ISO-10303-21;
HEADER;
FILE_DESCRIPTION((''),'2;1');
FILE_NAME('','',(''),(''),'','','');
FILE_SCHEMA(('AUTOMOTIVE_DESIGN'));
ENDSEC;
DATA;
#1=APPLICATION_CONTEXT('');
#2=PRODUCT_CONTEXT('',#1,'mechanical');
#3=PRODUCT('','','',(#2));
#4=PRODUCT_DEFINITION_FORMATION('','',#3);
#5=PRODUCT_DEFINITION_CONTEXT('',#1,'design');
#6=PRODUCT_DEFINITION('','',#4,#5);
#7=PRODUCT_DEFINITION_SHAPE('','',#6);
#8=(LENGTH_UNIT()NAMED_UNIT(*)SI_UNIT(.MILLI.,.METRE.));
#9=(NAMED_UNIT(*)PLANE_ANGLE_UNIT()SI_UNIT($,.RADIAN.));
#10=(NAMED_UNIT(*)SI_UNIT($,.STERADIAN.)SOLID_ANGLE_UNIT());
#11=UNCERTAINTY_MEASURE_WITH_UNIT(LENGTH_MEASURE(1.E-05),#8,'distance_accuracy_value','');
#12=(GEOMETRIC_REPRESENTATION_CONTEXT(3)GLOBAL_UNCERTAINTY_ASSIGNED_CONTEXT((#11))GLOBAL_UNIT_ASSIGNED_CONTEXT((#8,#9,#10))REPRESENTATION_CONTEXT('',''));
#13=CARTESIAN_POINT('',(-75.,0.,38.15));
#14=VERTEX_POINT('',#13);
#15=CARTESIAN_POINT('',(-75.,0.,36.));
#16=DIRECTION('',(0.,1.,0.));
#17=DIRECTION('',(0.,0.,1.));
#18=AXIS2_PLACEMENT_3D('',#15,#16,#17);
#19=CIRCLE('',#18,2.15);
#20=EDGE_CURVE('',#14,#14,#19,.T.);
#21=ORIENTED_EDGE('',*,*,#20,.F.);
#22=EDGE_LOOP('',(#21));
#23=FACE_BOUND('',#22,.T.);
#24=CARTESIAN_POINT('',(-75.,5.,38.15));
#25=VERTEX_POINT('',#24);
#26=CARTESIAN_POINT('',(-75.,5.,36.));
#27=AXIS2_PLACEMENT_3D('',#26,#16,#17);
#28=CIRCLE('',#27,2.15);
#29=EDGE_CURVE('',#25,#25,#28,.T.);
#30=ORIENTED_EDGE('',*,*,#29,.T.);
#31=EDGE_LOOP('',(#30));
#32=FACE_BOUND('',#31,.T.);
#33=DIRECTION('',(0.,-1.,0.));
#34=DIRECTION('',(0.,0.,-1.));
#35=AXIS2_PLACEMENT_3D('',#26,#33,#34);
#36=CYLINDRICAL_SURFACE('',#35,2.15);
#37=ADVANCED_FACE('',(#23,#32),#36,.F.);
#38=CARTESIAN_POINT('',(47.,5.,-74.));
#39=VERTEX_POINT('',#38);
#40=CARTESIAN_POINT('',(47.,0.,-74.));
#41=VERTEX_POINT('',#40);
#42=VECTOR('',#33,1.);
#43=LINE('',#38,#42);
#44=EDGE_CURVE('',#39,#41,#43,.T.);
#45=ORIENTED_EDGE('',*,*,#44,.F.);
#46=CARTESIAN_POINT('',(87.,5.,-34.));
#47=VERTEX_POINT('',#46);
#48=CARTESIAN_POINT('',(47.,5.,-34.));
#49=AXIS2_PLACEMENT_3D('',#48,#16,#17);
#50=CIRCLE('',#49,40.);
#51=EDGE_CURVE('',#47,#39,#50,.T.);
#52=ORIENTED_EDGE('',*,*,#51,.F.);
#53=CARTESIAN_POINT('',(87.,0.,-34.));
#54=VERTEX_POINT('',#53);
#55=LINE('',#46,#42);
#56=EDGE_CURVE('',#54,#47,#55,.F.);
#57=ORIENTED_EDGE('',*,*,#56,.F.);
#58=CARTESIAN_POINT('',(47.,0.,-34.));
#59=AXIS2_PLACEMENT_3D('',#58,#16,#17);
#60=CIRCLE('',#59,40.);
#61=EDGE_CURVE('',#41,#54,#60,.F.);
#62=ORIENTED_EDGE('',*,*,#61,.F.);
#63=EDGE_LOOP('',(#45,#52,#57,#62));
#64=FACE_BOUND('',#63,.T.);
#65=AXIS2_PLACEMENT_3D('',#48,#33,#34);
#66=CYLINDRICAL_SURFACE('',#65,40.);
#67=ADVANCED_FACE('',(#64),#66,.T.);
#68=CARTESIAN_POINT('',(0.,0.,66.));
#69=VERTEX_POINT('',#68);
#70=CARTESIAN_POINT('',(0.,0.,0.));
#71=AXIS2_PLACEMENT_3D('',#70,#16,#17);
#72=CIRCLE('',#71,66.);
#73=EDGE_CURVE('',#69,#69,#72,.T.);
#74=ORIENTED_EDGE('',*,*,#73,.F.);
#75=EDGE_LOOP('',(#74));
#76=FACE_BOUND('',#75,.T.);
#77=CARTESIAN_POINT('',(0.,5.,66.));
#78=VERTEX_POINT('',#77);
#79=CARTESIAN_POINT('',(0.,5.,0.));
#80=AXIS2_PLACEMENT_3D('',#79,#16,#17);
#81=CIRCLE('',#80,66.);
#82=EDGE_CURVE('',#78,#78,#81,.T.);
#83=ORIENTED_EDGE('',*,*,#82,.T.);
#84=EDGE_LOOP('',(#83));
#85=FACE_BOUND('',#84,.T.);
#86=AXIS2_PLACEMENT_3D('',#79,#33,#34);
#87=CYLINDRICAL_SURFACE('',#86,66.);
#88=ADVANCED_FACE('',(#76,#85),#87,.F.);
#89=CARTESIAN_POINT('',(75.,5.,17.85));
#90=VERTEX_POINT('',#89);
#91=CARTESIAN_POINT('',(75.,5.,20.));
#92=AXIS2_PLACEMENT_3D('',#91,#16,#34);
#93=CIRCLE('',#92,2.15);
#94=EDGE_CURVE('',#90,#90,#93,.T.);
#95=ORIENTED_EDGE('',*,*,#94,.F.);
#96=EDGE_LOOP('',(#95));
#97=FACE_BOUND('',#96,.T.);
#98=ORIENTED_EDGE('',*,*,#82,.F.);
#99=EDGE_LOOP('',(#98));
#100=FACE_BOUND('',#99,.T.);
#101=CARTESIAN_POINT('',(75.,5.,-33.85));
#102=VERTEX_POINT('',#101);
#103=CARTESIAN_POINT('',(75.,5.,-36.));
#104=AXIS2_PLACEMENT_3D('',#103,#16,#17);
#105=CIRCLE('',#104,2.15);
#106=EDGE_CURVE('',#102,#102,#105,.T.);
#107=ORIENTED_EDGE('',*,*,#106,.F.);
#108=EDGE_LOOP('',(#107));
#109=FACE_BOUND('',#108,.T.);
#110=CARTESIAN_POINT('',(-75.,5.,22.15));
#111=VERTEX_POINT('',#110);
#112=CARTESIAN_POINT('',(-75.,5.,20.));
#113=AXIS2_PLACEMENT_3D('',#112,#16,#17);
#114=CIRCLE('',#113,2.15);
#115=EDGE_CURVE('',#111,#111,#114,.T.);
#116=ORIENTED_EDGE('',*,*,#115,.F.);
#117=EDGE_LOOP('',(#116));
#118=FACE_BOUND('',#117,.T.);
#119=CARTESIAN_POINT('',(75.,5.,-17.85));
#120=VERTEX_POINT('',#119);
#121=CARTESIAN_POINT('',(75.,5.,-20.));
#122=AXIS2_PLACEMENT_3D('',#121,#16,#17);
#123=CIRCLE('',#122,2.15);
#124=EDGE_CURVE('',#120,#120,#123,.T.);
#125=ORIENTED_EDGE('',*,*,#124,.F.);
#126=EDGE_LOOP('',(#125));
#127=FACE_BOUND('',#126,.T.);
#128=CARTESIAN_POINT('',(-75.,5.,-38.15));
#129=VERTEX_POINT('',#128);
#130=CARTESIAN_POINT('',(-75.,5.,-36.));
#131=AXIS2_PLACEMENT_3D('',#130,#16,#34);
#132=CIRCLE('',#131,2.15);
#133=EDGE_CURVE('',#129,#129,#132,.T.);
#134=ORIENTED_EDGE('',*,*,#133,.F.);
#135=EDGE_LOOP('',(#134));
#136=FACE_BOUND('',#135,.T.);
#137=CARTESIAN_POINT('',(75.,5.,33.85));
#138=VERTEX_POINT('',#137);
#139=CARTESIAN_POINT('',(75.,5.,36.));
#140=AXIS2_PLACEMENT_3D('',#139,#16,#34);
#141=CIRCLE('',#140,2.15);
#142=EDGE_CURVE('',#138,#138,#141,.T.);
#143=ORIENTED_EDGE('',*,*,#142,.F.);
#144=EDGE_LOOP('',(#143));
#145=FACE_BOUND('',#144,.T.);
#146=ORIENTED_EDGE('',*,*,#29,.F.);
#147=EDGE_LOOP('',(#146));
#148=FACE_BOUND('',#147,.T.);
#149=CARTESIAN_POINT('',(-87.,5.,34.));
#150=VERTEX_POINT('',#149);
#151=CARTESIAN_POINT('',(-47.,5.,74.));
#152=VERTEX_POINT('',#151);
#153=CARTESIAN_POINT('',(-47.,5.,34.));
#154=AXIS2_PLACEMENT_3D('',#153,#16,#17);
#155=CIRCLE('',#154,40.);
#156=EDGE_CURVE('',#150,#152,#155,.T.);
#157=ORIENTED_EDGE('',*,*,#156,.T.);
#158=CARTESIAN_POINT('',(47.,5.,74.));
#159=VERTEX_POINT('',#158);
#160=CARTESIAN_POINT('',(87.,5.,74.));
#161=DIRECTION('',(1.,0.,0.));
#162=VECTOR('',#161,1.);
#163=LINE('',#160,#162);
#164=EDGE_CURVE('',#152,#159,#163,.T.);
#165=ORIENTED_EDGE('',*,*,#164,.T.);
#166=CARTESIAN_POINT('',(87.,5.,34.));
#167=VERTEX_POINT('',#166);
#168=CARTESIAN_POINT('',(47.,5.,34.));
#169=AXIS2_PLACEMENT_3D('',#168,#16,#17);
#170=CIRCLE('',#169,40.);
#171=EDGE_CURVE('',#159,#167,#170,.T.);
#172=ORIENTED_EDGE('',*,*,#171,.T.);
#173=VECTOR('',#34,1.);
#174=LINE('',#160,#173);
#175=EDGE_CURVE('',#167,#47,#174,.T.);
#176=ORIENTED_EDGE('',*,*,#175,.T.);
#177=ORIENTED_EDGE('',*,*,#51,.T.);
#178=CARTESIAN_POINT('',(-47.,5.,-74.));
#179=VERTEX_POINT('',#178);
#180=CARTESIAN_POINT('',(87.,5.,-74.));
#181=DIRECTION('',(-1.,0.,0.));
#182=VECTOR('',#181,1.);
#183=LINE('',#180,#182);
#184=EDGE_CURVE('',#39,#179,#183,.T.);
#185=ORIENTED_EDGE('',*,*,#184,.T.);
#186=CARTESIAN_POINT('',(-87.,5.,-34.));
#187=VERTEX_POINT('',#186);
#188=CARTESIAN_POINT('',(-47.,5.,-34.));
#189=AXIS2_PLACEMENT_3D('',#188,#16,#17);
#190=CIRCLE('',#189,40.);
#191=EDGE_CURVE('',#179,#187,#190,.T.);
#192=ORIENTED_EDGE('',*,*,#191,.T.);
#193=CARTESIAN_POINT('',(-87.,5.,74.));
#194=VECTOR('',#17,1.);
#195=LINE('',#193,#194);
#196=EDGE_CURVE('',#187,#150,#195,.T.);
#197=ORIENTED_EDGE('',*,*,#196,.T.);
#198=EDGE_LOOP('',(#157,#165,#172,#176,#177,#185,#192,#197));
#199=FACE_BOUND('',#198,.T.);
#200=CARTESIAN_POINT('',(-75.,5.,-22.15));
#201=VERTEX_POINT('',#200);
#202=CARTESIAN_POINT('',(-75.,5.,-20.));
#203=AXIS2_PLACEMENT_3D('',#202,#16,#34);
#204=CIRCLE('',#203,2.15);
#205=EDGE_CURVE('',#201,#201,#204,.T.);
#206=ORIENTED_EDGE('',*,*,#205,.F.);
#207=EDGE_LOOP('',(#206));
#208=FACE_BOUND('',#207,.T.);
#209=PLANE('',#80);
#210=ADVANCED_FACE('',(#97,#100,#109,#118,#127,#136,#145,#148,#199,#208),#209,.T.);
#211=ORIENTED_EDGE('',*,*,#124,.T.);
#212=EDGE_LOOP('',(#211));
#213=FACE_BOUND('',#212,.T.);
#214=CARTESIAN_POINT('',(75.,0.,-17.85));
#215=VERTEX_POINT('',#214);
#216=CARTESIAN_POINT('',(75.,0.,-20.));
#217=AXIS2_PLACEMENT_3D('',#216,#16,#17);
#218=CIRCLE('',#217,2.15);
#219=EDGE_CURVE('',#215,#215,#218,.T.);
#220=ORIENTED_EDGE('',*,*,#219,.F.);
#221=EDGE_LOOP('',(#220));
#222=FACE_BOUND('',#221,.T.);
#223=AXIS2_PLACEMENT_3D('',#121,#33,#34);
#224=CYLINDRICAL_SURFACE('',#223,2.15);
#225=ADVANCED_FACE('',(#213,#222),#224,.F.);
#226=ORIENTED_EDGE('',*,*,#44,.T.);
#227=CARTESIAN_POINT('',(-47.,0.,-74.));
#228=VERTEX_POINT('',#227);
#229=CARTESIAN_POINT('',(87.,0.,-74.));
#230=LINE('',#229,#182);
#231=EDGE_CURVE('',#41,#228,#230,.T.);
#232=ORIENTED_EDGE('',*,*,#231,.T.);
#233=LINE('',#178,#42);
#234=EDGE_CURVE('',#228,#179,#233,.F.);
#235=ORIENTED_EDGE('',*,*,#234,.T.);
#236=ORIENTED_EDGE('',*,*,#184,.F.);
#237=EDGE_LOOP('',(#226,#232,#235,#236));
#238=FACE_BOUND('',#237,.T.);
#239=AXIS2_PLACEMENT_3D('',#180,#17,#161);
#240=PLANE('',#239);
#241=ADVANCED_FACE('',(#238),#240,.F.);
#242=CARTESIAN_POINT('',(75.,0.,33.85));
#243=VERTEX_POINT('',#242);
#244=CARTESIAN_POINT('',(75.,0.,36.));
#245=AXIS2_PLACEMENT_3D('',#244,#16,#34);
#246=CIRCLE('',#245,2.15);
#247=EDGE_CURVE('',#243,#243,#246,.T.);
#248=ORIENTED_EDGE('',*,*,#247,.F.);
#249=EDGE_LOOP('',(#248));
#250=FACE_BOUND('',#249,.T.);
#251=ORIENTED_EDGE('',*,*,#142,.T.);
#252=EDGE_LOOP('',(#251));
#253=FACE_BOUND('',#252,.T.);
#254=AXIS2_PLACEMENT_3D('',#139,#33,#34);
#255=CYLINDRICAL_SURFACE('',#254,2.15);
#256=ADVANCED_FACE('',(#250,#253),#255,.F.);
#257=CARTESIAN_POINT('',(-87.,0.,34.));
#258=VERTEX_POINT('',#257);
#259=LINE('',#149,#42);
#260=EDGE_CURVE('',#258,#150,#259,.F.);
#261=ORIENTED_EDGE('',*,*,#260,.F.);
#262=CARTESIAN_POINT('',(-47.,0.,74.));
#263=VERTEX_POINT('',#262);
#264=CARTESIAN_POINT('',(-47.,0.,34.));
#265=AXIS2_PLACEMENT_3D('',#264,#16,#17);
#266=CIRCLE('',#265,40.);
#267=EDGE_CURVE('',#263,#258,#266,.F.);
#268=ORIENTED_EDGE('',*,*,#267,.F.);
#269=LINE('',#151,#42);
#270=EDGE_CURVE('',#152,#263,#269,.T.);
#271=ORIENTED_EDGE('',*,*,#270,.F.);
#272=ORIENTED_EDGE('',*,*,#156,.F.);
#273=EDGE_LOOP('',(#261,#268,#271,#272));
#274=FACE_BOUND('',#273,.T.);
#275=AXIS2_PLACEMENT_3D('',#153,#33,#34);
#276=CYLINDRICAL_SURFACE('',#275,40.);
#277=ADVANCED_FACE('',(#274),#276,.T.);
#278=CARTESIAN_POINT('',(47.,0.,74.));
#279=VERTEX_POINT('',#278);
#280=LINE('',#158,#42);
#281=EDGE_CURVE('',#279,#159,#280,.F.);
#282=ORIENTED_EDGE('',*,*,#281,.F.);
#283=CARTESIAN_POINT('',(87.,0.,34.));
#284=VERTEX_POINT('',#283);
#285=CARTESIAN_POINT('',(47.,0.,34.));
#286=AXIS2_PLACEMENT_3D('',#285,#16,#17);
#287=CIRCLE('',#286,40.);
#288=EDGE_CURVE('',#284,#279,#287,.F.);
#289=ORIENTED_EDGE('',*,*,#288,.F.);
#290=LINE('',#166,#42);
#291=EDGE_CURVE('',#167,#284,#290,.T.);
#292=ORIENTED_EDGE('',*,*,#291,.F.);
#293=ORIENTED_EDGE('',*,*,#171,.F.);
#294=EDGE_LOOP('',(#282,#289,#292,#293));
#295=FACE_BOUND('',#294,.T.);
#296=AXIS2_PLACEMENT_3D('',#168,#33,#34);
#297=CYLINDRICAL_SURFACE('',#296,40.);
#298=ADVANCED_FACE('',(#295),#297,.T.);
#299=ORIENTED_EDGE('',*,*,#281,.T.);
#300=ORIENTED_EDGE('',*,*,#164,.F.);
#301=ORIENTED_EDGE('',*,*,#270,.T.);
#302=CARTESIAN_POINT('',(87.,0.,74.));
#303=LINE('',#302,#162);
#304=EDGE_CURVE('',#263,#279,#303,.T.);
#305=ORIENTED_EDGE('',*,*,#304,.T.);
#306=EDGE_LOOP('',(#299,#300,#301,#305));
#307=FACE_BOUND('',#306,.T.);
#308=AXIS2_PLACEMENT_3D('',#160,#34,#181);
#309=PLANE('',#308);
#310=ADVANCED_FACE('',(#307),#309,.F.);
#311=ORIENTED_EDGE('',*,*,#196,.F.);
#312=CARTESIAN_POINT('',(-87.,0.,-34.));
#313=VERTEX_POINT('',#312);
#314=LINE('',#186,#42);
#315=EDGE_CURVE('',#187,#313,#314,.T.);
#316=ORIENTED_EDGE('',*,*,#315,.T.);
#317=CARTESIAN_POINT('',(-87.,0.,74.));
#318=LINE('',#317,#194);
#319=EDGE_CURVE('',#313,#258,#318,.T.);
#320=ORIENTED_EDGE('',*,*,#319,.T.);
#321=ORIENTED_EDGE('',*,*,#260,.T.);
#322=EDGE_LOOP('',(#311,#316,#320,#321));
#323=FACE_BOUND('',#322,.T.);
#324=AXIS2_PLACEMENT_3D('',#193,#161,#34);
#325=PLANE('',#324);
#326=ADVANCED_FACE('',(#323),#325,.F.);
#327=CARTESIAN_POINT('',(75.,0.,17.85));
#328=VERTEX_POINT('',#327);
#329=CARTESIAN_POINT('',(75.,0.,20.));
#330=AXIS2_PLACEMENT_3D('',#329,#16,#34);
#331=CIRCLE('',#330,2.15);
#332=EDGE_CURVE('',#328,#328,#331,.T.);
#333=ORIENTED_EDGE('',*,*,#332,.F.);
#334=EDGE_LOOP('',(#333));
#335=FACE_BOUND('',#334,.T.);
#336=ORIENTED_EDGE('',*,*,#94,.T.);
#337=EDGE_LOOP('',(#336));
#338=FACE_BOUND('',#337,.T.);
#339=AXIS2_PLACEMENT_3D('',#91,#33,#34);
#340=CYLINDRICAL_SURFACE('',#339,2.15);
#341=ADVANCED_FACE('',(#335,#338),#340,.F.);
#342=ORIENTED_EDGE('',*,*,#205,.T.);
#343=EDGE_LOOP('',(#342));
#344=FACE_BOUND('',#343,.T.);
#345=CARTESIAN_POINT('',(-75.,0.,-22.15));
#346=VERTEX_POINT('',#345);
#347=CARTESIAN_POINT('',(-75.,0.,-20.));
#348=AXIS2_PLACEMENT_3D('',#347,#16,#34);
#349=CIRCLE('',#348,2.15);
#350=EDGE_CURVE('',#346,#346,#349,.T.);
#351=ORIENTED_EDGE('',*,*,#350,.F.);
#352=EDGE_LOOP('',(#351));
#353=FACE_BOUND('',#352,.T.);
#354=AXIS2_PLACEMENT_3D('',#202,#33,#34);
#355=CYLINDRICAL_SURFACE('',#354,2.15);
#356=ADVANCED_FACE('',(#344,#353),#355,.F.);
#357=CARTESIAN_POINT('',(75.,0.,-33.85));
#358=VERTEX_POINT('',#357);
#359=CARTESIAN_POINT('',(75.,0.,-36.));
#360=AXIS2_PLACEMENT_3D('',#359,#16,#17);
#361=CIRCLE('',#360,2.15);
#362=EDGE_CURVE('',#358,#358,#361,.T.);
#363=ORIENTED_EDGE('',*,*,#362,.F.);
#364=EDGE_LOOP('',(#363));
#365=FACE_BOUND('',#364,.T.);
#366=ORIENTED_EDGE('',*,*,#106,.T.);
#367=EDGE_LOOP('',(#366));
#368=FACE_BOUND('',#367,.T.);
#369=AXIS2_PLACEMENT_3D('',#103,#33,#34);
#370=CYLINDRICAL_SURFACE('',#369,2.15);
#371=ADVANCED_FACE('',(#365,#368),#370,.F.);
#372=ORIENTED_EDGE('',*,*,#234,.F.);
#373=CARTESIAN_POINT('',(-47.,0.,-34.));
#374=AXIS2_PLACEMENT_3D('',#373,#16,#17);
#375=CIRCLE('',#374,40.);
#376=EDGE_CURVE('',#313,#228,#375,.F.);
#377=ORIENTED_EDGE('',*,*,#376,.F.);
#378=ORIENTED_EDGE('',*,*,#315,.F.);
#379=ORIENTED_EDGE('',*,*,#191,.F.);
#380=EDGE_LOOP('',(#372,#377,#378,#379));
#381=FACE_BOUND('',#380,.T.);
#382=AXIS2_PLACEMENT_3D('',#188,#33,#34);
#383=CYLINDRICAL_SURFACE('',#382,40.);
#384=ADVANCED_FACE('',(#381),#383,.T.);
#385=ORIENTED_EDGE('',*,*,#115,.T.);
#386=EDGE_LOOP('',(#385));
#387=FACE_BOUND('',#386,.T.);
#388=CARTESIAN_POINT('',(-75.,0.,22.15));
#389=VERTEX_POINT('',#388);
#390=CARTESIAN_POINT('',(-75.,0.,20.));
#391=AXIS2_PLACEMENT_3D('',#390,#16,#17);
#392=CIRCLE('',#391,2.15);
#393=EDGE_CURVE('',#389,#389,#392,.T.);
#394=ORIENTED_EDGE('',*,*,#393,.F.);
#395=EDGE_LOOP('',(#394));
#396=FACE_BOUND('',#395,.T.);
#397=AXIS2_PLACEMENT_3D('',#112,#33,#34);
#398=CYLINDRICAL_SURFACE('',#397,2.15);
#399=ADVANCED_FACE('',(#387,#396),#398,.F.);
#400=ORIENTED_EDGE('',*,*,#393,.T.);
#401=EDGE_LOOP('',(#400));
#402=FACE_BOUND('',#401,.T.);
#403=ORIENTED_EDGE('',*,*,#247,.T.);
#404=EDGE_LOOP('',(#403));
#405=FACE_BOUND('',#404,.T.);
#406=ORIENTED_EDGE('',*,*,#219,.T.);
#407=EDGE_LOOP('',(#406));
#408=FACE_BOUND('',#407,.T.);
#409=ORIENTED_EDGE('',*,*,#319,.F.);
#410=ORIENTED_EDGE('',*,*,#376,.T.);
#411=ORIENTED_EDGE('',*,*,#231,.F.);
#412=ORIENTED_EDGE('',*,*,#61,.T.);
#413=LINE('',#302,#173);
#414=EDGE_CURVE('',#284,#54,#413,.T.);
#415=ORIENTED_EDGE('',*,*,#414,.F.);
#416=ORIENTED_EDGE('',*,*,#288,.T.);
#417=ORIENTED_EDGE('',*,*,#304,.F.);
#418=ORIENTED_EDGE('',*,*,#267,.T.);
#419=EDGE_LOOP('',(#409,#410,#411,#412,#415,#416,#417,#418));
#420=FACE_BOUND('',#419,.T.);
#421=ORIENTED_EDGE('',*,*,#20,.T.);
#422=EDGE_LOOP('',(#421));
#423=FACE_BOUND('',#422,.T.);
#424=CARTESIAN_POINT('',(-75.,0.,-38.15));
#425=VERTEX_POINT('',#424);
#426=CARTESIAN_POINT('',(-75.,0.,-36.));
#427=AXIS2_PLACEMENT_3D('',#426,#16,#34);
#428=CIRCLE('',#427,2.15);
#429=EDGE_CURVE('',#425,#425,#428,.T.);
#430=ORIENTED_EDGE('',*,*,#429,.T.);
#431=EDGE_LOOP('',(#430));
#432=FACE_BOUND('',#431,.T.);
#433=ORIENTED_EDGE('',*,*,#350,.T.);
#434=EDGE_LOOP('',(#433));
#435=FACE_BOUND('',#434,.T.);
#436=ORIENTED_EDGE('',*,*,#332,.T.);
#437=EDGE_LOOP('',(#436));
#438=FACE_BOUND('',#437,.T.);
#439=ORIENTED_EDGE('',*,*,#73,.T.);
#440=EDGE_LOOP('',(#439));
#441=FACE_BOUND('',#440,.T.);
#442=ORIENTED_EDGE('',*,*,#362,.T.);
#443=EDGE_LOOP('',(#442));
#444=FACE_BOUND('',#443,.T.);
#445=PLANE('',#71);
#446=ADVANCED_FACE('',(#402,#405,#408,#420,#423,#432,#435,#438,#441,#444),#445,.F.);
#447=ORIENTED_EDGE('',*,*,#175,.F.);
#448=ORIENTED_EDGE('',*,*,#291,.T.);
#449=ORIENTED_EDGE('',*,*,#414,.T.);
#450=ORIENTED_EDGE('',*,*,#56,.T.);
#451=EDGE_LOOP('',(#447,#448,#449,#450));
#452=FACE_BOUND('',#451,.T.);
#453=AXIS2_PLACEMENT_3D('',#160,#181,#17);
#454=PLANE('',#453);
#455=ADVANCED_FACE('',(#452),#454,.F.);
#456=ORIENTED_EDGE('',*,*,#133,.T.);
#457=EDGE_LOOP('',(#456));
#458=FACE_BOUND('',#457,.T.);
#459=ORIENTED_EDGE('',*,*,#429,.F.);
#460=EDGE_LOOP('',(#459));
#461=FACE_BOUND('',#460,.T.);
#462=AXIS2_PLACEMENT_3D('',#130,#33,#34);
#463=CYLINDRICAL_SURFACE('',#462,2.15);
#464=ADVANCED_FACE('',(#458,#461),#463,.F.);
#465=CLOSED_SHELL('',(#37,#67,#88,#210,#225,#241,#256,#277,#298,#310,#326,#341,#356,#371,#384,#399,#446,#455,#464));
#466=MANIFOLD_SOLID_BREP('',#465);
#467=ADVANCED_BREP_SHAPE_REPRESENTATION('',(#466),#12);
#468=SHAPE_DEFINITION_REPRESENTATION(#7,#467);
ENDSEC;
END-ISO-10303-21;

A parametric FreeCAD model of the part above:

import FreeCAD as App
import Part
import Sketcher

V = App.Vector
Q = App.Units.Quantity


def edges_at(feature, points):
    """Names of the edges that pass closest to the given points."""
    edges = feature.Shape.Edges
    near = lambda p: min(range(len(edges)), key=lambda i: edges[i].distToShape(Part.Vertex(*p))[0])
    return sorted({f"Edge{near(p) + 1}" for p in points})


def add_polygon(sketch, points):
    """Adds a closed chain of lines whose ends are joined by coincident constraints."""
    first, n = sketch.GeometryCount, len(points)
    for a, b in zip(points, points[1:] + points[:1]):
        sketch.addGeometry(Part.LineSegment(App.Vector(*a, 0), App.Vector(*b, 0)), False)
    for i in range(n):
        sketch.addConstraint(Sketcher.Constraint("Coincident", first + i, 2, first + (i + 1) % n, 1))

doc = App.newDocument("Part")
params = doc.addObject("Spreadsheet::Sheet", "Params")
for row, (alias, value) in enumerate([
    ("sketch1_diameter", "132 mm"),
    ("sketch1_diameter2", "4.3 mm"),
    ("sketch1_width", "174 mm"),
    ("sketch1_height", "148 mm"),
    ("pad1_length", "5 mm"),
    ("fillet_radius", "40 mm"),
], start=1):
    params.set(f"A{row}", alias)
    params.set(f"B{row}", "=" + value)
    params.setAlias(f"B{row}", alias)

body = doc.addObject("PartDesign::Body", "Body")

sketch1 = body.newObject("Sketcher::SketchObject", "Sketch")
sketch1.AttachmentSupport = (doc.getObject("XZ_Plane"), [""])
sketch1.MapMode = "FlatFace"
add_polygon(sketch1, [(-87, -74), (-87, 74), (87, 74), (87, -74)])
sketch1.addGeometry(Part.Circle(V(-75, 36, 0), V(0, 0, 1), 2.1), False)
sketch1.addGeometry(Part.Circle(V(-75, 20, 0), V(0, 0, 1), 2.1), False)
sketch1.addGeometry(Part.Circle(V(75, 36, 0), V(0, 0, 1), 2.1), False)
sketch1.addGeometry(Part.Circle(V(75, 20, 0), V(0, 0, 1), 2.1), False)
sketch1.addGeometry(Part.Circle(V(-75, -20, 0), V(0, 0, 1), 2.1), False)
sketch1.addGeometry(Part.Circle(V(-75, -36, 0), V(0, 0, 1), 2.1), False)
sketch1.addGeometry(Part.Circle(V(0, 0, 0), V(0, 0, 1), 66), False)
sketch1.addGeometry(Part.Circle(V(75, -20, 0), V(0, 0, 1), 2.1), False)
sketch1.addGeometry(Part.Circle(V(75, -36, 0), V(0, 0, 1), 2.1), False)
sketch1.addConstraint([
    Sketcher.Constraint("Vertical", 0),
    Sketcher.Constraint("Horizontal", 1),
    Sketcher.Constraint("Vertical", 2),
    Sketcher.Constraint("Horizontal", 3),
    Sketcher.Constraint("Coincident", 10, 3, -1, 1),
    Sketcher.Constraint("Equal", 4, 5),
    Sketcher.Constraint("Equal", 5, 6),
    Sketcher.Constraint("Equal", 6, 7),
    Sketcher.Constraint("Equal", 7, 8),
    Sketcher.Constraint("Equal", 8, 9),
    Sketcher.Constraint("Equal", 9, 11),
    Sketcher.Constraint("Equal", 11, 12),
    Sketcher.Constraint("Symmetric", 7, 3, 8, 3, -1, 1),
    Sketcher.Constraint("Symmetric", 6, 3, 9, 3, -1, 1),
    Sketcher.Constraint("Symmetric", 5, 3, 11, 3, -1, 1),
    Sketcher.Constraint("Symmetric", 4, 3, 12, 3, -1, 1),
    Sketcher.Constraint("Symmetric", 0, 2, 2, 2, -1, 1),
    Sketcher.Constraint("Symmetric", 4, 3, 6, 3, -2),
    Sketcher.Constraint("Symmetric", 5, 3, 7, 3, -2),
    Sketcher.Constraint("Vertical", 4, 3, 5, 3),
    Sketcher.Constraint("Diameter", 10, Q("132 mm")),
    Sketcher.Constraint("Diameter", 4, Q("4.3 mm")),
    Sketcher.Constraint("DistanceX", 1, 1, 1, 2, Q("174 mm")),
    Sketcher.Constraint("DistanceY", 0, 1, 0, 2, Q("148 mm")),
    Sketcher.Constraint("DistanceX", 4, 3, -1, 1, Q("75 mm")),
    Sketcher.Constraint("DistanceY", -1, 1, 4, 3, Q("36 mm")),
    Sketcher.Constraint("DistanceY", -1, 1, 5, 3, Q("20 mm")),
])
sketch1.setExpression("Constraints[24]", "Params.sketch1_diameter")
sketch1.setExpression("Constraints[25]", "Params.sketch1_diameter2")
sketch1.setExpression("Constraints[26]", "Params.sketch1_width")
sketch1.setExpression("Constraints[27]", "Params.sketch1_height")
pad1 = body.newObject("PartDesign::Pad", "Pad")
pad1.Profile = sketch1
pad1.setExpression("Length", "Params.pad1_length")
pad1.Reversed = True
doc.recompute()

fillet = body.newObject("PartDesign::Fillet", "Fillet")
fillet.Base = (pad1, edges_at(pad1, [
    (-87, 2.5, -74),
    (87, 2.5, -74),
    (87, 2.5, 74),
    (-87, 2.5, 74),
]))
fillet.setExpression("Radius", "Params.fillet_radius")

doc.recompute()
